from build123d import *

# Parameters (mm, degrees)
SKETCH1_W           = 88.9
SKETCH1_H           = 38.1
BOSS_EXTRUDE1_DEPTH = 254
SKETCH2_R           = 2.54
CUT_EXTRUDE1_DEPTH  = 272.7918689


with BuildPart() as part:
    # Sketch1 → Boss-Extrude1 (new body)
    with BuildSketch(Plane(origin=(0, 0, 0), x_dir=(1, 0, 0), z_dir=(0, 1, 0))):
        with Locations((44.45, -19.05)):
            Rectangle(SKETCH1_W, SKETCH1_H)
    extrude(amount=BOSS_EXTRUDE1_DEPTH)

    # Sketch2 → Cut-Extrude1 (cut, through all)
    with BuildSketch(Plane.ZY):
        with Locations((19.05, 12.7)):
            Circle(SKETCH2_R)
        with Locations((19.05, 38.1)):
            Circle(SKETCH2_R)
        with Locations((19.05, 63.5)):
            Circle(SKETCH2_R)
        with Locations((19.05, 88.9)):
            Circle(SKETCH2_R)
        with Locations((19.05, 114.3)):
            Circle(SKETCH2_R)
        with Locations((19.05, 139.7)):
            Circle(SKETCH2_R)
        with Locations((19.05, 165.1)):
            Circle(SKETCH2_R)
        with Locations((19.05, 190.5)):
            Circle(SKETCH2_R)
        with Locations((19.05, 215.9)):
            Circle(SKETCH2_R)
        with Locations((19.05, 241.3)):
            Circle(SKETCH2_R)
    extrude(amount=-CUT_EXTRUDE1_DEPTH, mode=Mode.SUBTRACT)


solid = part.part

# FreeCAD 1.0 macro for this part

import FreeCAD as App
import Part
import Sketcher
from FreeCAD import Vector
Q = App.Units.Quantity


def add_polygon(sketch, points):
    """Adds a closed chain of lines whose ends are joined by coincident constraints."""
    first, n = sketch.GeometryCount, len(points)
    for a, b in zip(points, points[1:] + points[:1]):
        sketch.addGeometry(Part.LineSegment(App.Vector(*a, 0), App.Vector(*b, 0)), False)
    for i in range(n):
        sketch.addConstraint(Sketcher.Constraint("Coincident", first + i, 2, first + (i + 1) % n, 1))

doc = App.newDocument("Part")
params = doc.addObject("Spreadsheet::Sheet", "Params")
for row, (alias, value) in enumerate([
    ("sketch1_width", "3.5 in"),
    ("sketch1_height", "1.5 in"),
    ("pad1_length", "10 in"),
    ("sketch2_diameter", "0.2 in"),
], start=1):
    params.set(f"A{row}", alias)
    params.set(f"B{row}", "=" + value)
    params.setAlias(f"B{row}", alias)

body = doc.addObject("PartDesign::Body", "Body")

# Sketch on XZ plane
sketch1 = body.newObject("Sketcher::SketchObject", "Sketch")
sketch1.AttachmentSupport = (doc.getObject("XZ_Plane"), [""])
sketch1.MapMode = "FlatFace"
add_polygon(sketch1, [(0, 0), (0, 38), (89, 38), (89, 0)])  # lines 0-3
sketch1.addConstraint([
    Sketcher.Constraint("Vertical", 0),
    Sketcher.Constraint("Horizontal", 1),
    Sketcher.Constraint("Vertical", 2),
    Sketcher.Constraint("Horizontal", 3),
    Sketcher.Constraint("Coincident", 3, 2, -1, 1),
    Sketcher.Constraint("DistanceX", 1, 1, 1, 2, Q("3.5 in")),
    Sketcher.Constraint("DistanceY", 0, 1, 0, 2, Q("1.5 in")),
])
sketch1.setExpression("Constraints[9]", "Params.sketch1_width")
sketch1.setExpression("Constraints[10]", "Params.sketch1_height")
pad1 = body.newObject("PartDesign::Pad", "Pad")
pad1.Profile = sketch1
pad1.setExpression("Length", "Params.pad1_length")
pad1.Reversed = True

# Sketch on YZ plane
sketch2 = body.newObject("Sketcher::SketchObject", "Sketch001")
sketch2.AttachmentSupport = (doc.getObject("YZ_Plane"), [""])
sketch2.MapMode = "FlatFace"
sketch2.addGeometry([
    Part.Circle(Vector(12.7, 19.1, 0), Vector(0, 0, 1), 2.5),  # 0
    Part.Circle(Vector(38.1, 19.1, 0), Vector(0, 0, 1), 2.5),  # 1
    Part.Circle(Vector(63.5, 19.1, 0), Vector(0, 0, 1), 2.5),  # 2
    Part.Circle(Vector(88.9, 19.1, 0), Vector(0, 0, 1), 2.5),  # 3
    Part.Circle(Vector(114.3, 19.1, 0), Vector(0, 0, 1), 2.5),  # 4
    Part.Circle(Vector(139.7, 19.1, 0), Vector(0, 0, 1), 2.5),  # 5
    Part.Circle(Vector(165.1, 19.1, 0), Vector(0, 0, 1), 2.5),  # 6
    Part.Circle(Vector(190.5, 19.1, 0), Vector(0, 0, 1), 2.5),  # 7
    Part.Circle(Vector(215.9, 19.1, 0), Vector(0, 0, 1), 2.5),  # 8
    Part.Circle(Vector(241.3, 19.1, 0), Vector(0, 0, 1), 2.5),  # 9
], False)
sketch2.addConstraint([
    Sketcher.Constraint("Equal", 0, 1),
    Sketcher.Constraint("Equal", 1, 2),
    Sketcher.Constraint("Equal", 2, 3),
    Sketcher.Constraint("Equal", 3, 4),
    Sketcher.Constraint("Equal", 4, 5),
    Sketcher.Constraint("Equal", 5, 6),
    Sketcher.Constraint("Equal", 6, 7),
    Sketcher.Constraint("Equal", 7, 8),
    Sketcher.Constraint("Equal", 8, 9),
    Sketcher.Constraint("Horizontal", 0, 3, 1, 3),
    Sketcher.Constraint("Horizontal", 1, 3, 2, 3),
    Sketcher.Constraint("Horizontal", 2, 3, 3, 3),
    Sketcher.Constraint("Horizontal", 3, 3, 4, 3),
    Sketcher.Constraint("Horizontal", 4, 3, 5, 3),
    Sketcher.Constraint("Horizontal", 5, 3, 6, 3),
    Sketcher.Constraint("Horizontal", 6, 3, 7, 3),
    Sketcher.Constraint("Horizontal", 7, 3, 8, 3),
    Sketcher.Constraint("Horizontal", 8, 3, 9, 3),
    Sketcher.Constraint("Diameter", 0, Q("0.2 in")),
    Sketcher.Constraint("DistanceX", 0, 3, 1, 3, Q("1 in")),
    Sketcher.Constraint("DistanceX", 1, 3, 2, 3, Q("1 in")),
    Sketcher.Constraint("DistanceX", 2, 3, 3, 3, Q("1 in")),
    Sketcher.Constraint("DistanceX", 3, 3, 4, 3, Q("1 in")),
    Sketcher.Constraint("DistanceX", 4, 3, 5, 3, Q("1 in")),
    Sketcher.Constraint("DistanceX", 5, 3, 6, 3, Q("1 in")),
    Sketcher.Constraint("DistanceX", 6, 3, 7, 3, Q("1 in")),
    Sketcher.Constraint("DistanceX", 7, 3, 8, 3, Q("1 in")),
    Sketcher.Constraint("DistanceX", 8, 3, 9, 3, Q("1 in")),
    Sketcher.Constraint("DistanceX", -1, 1, 0, 3, Q("0.5 in")),
    Sketcher.Constraint("DistanceY", -1, 1, 0, 3, Q("0.75 in")),
])
sketch2.setExpression("Constraints[18]", "Params.sketch2_diameter")
pocket1 = body.newObject("PartDesign::Pocket", "Pocket")
pocket1.Profile = sketch2
pocket1.Type = "ThroughAll"
pocket1.Reversed = True

doc.recompute()
